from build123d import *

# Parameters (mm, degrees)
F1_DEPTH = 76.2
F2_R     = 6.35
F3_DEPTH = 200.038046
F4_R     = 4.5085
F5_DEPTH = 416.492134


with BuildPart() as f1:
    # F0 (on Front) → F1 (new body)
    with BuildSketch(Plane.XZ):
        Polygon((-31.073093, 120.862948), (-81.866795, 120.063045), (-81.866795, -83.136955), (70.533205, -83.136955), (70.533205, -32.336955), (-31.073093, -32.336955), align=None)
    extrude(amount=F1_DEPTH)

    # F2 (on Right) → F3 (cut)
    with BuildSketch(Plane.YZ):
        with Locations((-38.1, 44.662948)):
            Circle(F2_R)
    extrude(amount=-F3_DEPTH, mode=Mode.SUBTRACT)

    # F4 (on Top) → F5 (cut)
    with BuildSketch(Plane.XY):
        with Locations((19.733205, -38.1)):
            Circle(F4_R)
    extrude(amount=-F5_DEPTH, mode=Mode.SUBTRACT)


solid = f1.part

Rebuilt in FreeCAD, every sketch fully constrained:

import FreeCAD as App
import Part
import Sketcher
from FreeCAD import Vector
Q = App.Units.Quantity

doc = App.newDocument("Part")
body = doc.addObject("PartDesign::Body", "Body")

sketch1 = doc.addObject("Sketcher::SketchObject", "Sketch")
body.addObject(sketch1)
sketch1.AttachmentSupport = (doc.XZ_Plane, [""])
sketch1.MapMode = "FlatFace"
sketch1.addGeometry(Part.LineSegment(Vector(-31, 121, 0), Vector(-82, 120, 0)), False)
sketch1.addGeometry(Part.LineSegment(Vector(-82, 120, 0), Vector(-82, -83, 0)), False)
sketch1.addGeometry(Part.LineSegment(Vector(-82, -83, 0), Vector(71, -83, 0)), False)
sketch1.addGeometry(Part.LineSegment(Vector(71, -83, 0), Vector(71, -32, 0)), False)
sketch1.addGeometry(Part.LineSegment(Vector(71, -32, 0), Vector(-31, -32, 0)), False)
sketch1.addGeometry(Part.LineSegment(Vector(-31, -32, 0), Vector(-31, 121, 0)), False)
sketch1.addConstraint(Sketcher.Constraint("Coincident", 0, 2, 1, 1))
sketch1.addConstraint(Sketcher.Constraint("Coincident", 1, 2, 2, 1))
sketch1.addConstraint(Sketcher.Constraint("Coincident", 2, 2, 3, 1))
sketch1.addConstraint(Sketcher.Constraint("Coincident", 3, 2, 4, 1))
sketch1.addConstraint(Sketcher.Constraint("Coincident", 4, 2, 5, 1))
sketch1.addConstraint(Sketcher.Constraint("Coincident", 5, 2, 0, 1))
sketch1.addConstraint(Sketcher.Constraint("Vertical", 1))
sketch1.addConstraint(Sketcher.Constraint("Horizontal", 2))
sketch1.addConstraint(Sketcher.Constraint("Vertical", 3))
sketch1.addConstraint(Sketcher.Constraint("Horizontal", 4))
sketch1.addConstraint(Sketcher.Constraint("Vertical", 5))
sketch1.addConstraint(Sketcher.Constraint("DistanceX", 2, 1, 2, 2, Q("6 in")))
sketch1.addConstraint(Sketcher.Constraint("DistanceY", 1, 2, 1, 1, Q("8 in")))
sketch1.addConstraint(Sketcher.Constraint("DistanceY", 3, 1, 3, 2, Q("2 in")))
sketch1.addConstraint(Sketcher.Constraint("Distance", 0, Q("2 in")))
sketch1.addConstraint(Sketcher.Constraint("DistanceX", 1, 2, 4, 2, 50.793702))
sketch1.addConstraint(Sketcher.Constraint("DistanceY", -1, 1, 5, 2, 120.862948))
sketch1.addConstraint(Sketcher.Constraint("DistanceX", 0, 2, -1, 1, 81.866795))
pad1 = doc.addObject("PartDesign::Pad", "Pad")
body.addObject(pad1)
pad1.Profile = sketch1
pad1.Length = Q("3 in")

sketch2 = doc.addObject("Sketcher::SketchObject", "Sketch001")
body.addObject(sketch2)
sketch2.AttachmentSupport = (doc.YZ_Plane, [""])
sketch2.MapMode = "FlatFace"
sketch2.addGeometry(Part.Circle(Vector(-38, 45, 0), Vector(0, 0, 1), 6), False)
sketch2.addConstraint(Sketcher.Constraint("Diameter", 0, Q("0.5 in")))
sketch2.addConstraint(Sketcher.Constraint("DistanceX", 0, 3, -1, 1, Q("1.5 in")))
sketch2.addConstraint(Sketcher.Constraint("DistanceY", -1, 1, 0, 3, 44.662948))
pocket1 = doc.addObject("PartDesign::Pocket", "Pocket")
body.addObject(pocket1)
pocket1.Profile = sketch2
pocket1.Length = 200.038046

sketch3 = doc.addObject("Sketcher::SketchObject", "Sketch002")
body.addObject(sketch3)
sketch3.AttachmentSupport = (doc.XY_Plane, [""])
sketch3.MapMode = "FlatFace"
sketch3.addGeometry(Part.Circle(Vector(19.7, -38.1, 0), Vector(0, 0, 1), 4.5), False)
sketch3.addConstraint(Sketcher.Constraint("Diameter", 0, Q("0.355 in")))
sketch3.addConstraint(Sketcher.Constraint("DistanceY", 0, 3, -1, 1, Q("1.5 in")))
sketch3.addConstraint(Sketcher.Constraint("DistanceX", -1, 1, 0, 3, 19.733205))
pocket2 = doc.addObject("PartDesign::Pocket", "Pocket001")
body.addObject(pocket2)
pocket2.Profile = sketch3
pocket2.Length = 416.492134

doc.recompute()
